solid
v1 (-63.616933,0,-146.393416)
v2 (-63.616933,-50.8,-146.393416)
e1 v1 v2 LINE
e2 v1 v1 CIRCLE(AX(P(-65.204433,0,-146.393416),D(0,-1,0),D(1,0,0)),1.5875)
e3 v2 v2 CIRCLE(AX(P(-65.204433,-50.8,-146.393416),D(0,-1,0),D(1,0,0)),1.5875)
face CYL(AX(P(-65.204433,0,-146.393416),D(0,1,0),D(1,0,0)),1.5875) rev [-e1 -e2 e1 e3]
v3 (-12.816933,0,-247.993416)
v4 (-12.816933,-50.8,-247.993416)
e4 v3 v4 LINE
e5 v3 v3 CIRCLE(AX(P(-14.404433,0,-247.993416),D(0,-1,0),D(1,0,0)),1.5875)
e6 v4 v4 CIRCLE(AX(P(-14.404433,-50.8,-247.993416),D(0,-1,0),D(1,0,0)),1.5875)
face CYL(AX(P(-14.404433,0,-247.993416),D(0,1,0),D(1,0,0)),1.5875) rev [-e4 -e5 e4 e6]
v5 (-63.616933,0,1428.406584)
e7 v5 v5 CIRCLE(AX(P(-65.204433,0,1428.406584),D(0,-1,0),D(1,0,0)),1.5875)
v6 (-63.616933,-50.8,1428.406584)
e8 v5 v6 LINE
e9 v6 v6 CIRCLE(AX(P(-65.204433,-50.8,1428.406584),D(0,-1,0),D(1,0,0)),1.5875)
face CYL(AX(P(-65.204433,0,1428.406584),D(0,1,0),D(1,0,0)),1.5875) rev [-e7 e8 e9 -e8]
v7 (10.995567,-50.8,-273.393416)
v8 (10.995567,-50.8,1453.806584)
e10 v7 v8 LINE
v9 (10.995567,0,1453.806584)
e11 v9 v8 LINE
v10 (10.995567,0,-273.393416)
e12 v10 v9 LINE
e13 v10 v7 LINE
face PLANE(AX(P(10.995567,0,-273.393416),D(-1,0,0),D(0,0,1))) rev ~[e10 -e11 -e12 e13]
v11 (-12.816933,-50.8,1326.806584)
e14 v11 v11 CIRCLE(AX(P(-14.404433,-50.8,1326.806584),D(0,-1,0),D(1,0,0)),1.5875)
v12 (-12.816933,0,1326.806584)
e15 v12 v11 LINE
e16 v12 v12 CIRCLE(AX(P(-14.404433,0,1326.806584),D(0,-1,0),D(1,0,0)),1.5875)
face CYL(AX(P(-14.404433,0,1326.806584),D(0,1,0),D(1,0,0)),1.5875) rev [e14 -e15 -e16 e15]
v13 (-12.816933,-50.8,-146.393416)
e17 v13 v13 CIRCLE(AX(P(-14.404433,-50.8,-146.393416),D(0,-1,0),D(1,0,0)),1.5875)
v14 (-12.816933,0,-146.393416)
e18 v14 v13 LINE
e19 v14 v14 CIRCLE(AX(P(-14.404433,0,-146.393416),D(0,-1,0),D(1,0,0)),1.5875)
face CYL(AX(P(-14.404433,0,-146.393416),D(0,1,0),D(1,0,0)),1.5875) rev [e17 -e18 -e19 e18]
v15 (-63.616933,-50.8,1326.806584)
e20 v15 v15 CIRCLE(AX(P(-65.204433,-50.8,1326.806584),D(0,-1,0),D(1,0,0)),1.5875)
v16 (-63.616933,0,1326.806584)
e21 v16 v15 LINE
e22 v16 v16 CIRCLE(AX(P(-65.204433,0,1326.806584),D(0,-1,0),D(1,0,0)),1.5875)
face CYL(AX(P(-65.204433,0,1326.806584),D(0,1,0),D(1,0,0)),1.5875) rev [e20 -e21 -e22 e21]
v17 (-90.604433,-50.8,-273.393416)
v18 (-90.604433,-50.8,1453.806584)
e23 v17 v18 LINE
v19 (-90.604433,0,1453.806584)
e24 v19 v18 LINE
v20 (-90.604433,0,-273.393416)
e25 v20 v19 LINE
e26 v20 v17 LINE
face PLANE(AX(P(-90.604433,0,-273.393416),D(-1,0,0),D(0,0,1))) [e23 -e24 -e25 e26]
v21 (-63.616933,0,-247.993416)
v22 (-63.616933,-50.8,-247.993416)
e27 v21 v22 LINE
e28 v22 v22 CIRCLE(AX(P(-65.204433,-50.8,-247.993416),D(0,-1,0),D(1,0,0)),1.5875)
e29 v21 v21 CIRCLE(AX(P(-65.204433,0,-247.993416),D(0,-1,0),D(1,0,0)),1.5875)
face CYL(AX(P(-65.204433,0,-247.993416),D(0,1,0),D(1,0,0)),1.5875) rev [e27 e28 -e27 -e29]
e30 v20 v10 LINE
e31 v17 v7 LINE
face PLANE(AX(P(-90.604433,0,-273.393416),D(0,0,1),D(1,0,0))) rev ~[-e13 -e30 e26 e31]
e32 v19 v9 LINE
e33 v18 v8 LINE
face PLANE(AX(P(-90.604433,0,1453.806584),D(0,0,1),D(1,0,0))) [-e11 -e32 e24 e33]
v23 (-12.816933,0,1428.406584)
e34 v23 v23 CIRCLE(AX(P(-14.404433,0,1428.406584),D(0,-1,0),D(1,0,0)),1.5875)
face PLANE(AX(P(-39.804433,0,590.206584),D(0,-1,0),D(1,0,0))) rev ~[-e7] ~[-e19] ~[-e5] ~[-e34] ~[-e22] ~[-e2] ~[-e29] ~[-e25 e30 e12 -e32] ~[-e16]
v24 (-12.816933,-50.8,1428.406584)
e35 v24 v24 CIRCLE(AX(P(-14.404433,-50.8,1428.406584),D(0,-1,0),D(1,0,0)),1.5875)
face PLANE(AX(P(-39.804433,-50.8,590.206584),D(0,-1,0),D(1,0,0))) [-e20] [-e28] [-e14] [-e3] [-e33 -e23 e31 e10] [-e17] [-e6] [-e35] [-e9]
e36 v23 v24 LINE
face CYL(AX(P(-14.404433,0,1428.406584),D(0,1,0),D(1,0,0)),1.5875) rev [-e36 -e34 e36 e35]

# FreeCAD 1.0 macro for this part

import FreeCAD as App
import Part
import Sketcher

V = App.Vector
Q = App.Units.Quantity


def add_polygon(sketch, points):
    """Adds a closed chain of lines whose ends are joined by coincident constraints."""
    first, n = sketch.GeometryCount, len(points)
    for a, b in zip(points, points[1:] + points[:1]):
        sketch.addGeometry(Part.LineSegment(App.Vector(*a, 0), App.Vector(*b, 0)), False)
    for i in range(n):
        sketch.addConstraint(Sketcher.Constraint("Coincident", first + i, 2, first + (i + 1) % n, 1))

doc = App.newDocument("Part")
body = doc.addObject("PartDesign::Body", "Body")

# Sketch on XZ plane
sketch1 = body.newObject("Sketcher::SketchObject", "Sketch")
sketch1.AttachmentSupport = (doc.getObject("XZ_Plane"), [""])
sketch1.MapMode = "FlatFace"
add_polygon(sketch1, [(-90.604433, 1453.806584), (-90.604433, -273.393416), (10.995567, -273.393416), (10.995567, 1453.806584)])  # lines 0-3
sketch1.addGeometry(Part.Circle(V(-65.204433, -247.993416, 0), V(0, 0, 1), 1.5875), False)  # 4
sketch1.addGeometry(Part.Circle(V(-65.204433, -146.393416, 0), V(0, 0, 1), 1.5875), False)  # 5
sketch1.addGeometry(Part.Circle(V(-14.404433, -247.993416, 0), V(0, 0, 1), 1.5875), False)  # 6
sketch1.addGeometry(Part.Circle(V(-14.404433, -146.393416, 0), V(0, 0, 1), 1.5875), False)  # 7
sketch1.addGeometry(Part.Circle(V(-65.204433, 1326.806584, 0), V(0, 0, 1), 1.5875), False)  # 8
sketch1.addGeometry(Part.Circle(V(-65.204433, 1428.406584, 0), V(0, 0, 1), 1.5875), False)  # 9
sketch1.addGeometry(Part.Circle(V(-14.404433, 1326.806584, 0), V(0, 0, 1), 1.5875), False)  # 10
sketch1.addGeometry(Part.Circle(V(-14.404433, 1428.406584, 0), V(0, 0, 1), 1.5875), False)  # 11
sketch1.addConstraint([
    Sketcher.Constraint("Vertical", 0),
    Sketcher.Constraint("Horizontal", 1),
    Sketcher.Constraint("Vertical", 2),
    Sketcher.Constraint("Horizontal", 3),
    Sketcher.Constraint("Equal", 4, 5),
    Sketcher.Constraint("Equal", 5, 6),
    Sketcher.Constraint("Equal", 6, 7),
    Sketcher.Constraint("Equal", 7, 8),
    Sketcher.Constraint("Equal", 8, 9),
    Sketcher.Constraint("Equal", 9, 10),
    Sketcher.Constraint("Equal", 10, 11),
    Sketcher.Constraint("Horizontal", 4, 3, 6, 3),
    Sketcher.Constraint("Horizontal", 5, 3, 7, 3),
    Sketcher.Constraint("Horizontal", 8, 3, 10, 3),
    Sketcher.Constraint("Horizontal", 9, 3, 11, 3),
    Sketcher.Constraint("Vertical", 4, 3, 5, 3),
    Sketcher.Constraint("Vertical", 6, 3, 7, 3),
    Sketcher.Constraint("Vertical", 5, 3, 8, 3),
    Sketcher.Constraint("Vertical", 8, 3, 9, 3),
    Sketcher.Constraint("Vertical", 7, 3, 10, 3),
    Sketcher.Constraint("Vertical", 10, 3, 11, 3),
    Sketcher.Constraint("DistanceX", 1, 1, 1, 2, Q("4 in")),
    Sketcher.Constraint("DistanceY", 0, 2, 0, 1, Q("68 in")),
    Sketcher.Constraint("Diameter", 4, Q("0.125 in")),
    Sketcher.Constraint("DistanceY", 4, 3, 5, 3, Q("4 in")),
    Sketcher.Constraint("DistanceX", 4, 3, 6, 3, Q("2 in")),
    Sketcher.Constraint("DistanceY", 5, 3, 8, 3, Q("58 in")),
    Sketcher.Constraint("DistanceY", 8, 3, 9, 3, Q("4 in")),
    Sketcher.Constraint("DistanceX", 0, 2, 4, 3, Q("1 in")),
    Sketcher.Constraint("DistanceY", 0, 2, 4, 3, Q("1 in")),
    Sketcher.Constraint("DistanceX", 4, 3, -1, 1, 65.204433),
    Sketcher.Constraint("DistanceY", 4, 3, -1, 1, 247.993416),
])
pad1 = body.newObject("PartDesign::Pad", "Pad")
pad1.Profile = sketch1
pad1.Length = Q("2 in")

doc.recompute()
